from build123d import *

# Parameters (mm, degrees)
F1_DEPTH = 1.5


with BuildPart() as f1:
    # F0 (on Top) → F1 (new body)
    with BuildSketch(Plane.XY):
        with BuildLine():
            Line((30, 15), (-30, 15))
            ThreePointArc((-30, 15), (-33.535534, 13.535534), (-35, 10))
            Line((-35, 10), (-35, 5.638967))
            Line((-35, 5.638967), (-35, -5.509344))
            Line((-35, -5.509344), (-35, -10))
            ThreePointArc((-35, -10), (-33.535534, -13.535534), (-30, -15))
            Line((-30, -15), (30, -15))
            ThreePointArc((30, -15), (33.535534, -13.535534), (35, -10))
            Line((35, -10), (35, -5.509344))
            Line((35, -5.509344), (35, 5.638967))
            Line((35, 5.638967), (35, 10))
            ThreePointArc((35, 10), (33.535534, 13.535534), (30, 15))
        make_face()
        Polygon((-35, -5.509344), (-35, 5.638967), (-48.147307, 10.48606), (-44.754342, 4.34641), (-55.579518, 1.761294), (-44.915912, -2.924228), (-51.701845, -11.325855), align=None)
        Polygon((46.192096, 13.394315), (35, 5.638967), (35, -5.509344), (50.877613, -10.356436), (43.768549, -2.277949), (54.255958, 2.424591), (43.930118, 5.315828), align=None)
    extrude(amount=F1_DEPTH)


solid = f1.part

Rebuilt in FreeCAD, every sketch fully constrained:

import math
import FreeCAD as App
import Part
import Sketcher
Q = App.Units.Quantity

doc = App.newDocument("Part")
body = doc.addObject("PartDesign::Body", "Body")

# Sketch on XY plane
sketch1 = doc.addObject("Sketcher::SketchObject", "Sketch")
body.addObject(sketch1)
sketch1.AttachmentSupport = (doc.XY_Plane, [""])
sketch1.MapMode = "FlatFace"
sketch1.addGeometry(Part.LineSegment(App.Vector(30, 15, 0), App.Vector(-30, 15, 0)), False)
sketch1.addGeometry(Part.ArcOfCircle(Part.Circle(App.Vector(-30, 10, 0), App.Vector(0, 0, 1), 5), math.radians(90), math.radians(180)), False)
sketch1.addGeometry(Part.LineSegment(App.Vector(-35, 10, 0), App.Vector(-35, 5.6, 0)), False)
sketch1.addGeometry(Part.LineSegment(App.Vector(-35, 5.6, 0), App.Vector(-48.1, 10.5, 0)), False)
sketch1.addGeometry(Part.LineSegment(App.Vector(-48.1, 10.5, 0), App.Vector(-44.8, 4.3, 0)), False)
sketch1.addGeometry(Part.LineSegment(App.Vector(-44.8, 4.3, 0), App.Vector(-55.6, 1.8, 0)), False)
sketch1.addGeometry(Part.LineSegment(App.Vector(-55.6, 1.8, 0), App.Vector(-44.9, -2.9, 0)), False)
sketch1.addGeometry(Part.LineSegment(App.Vector(-44.9, -2.9, 0), App.Vector(-51.7, -11.3, 0)), False)
sketch1.addGeometry(Part.LineSegment(App.Vector(-51.7, -11.3, 0), App.Vector(-35, -5.5, 0)), False)
sketch1.addGeometry(Part.LineSegment(App.Vector(-35, -5.5, 0), App.Vector(-35, -10, 0)), False)
sketch1.addGeometry(Part.ArcOfCircle(Part.Circle(App.Vector(-30, -10, 0), App.Vector(0, 0, 1), 5), math.radians(180), math.radians(270)), False)
sketch1.addGeometry(Part.LineSegment(App.Vector(-30, -15, 0), App.Vector(30, -15, 0)), False)
sketch1.addGeometry(Part.ArcOfCircle(Part.Circle(App.Vector(30, -10, 0), App.Vector(0, 0, 1), 5), math.radians(-90), math.radians(0)), False)
sketch1.addGeometry(Part.LineSegment(App.Vector(35, -10, 0), App.Vector(35, -5.5, 0)), False)
sketch1.addGeometry(Part.LineSegment(App.Vector(35, -5.5, 0), App.Vector(50.9, -10.4, 0)), False)
sketch1.addGeometry(Part.LineSegment(App.Vector(50.9, -10.4, 0), App.Vector(43.8, -2.3, 0)), False)
sketch1.addGeometry(Part.LineSegment(App.Vector(43.8, -2.3, 0), App.Vector(54.3, 2.4, 0)), False)
sketch1.addGeometry(Part.LineSegment(App.Vector(54.3, 2.4, 0), App.Vector(43.9, 5.3, 0)), False)
sketch1.addGeometry(Part.LineSegment(App.Vector(43.9, 5.3, 0), App.Vector(46.2, 13.4, 0)), False)
sketch1.addGeometry(Part.LineSegment(App.Vector(46.2, 13.4, 0), App.Vector(35, 5.6, 0)), False)
sketch1.addGeometry(Part.LineSegment(App.Vector(35, 5.6, 0), App.Vector(35, 10, 0)), False)
sketch1.addGeometry(Part.ArcOfCircle(Part.Circle(App.Vector(30, 10, 0), App.Vector(0, 0, 1), 5), math.radians(0), math.radians(90)), False)
sketch1.addConstraint(Sketcher.Constraint("Tangent", 0, 2, 1, 1))
sketch1.addConstraint(Sketcher.Constraint("Tangent", 1, 2, 2, 1))
sketch1.addConstraint(Sketcher.Constraint("Coincident", 2, 2, 3, 1))
sketch1.addConstraint(Sketcher.Constraint("Coincident", 3, 2, 4, 1))
sketch1.addConstraint(Sketcher.Constraint("Coincident", 4, 2, 5, 1))
sketch1.addConstraint(Sketcher.Constraint("Coincident", 5, 2, 6, 1))
sketch1.addConstraint(Sketcher.Constraint("Coincident", 6, 2, 7, 1))
sketch1.addConstraint(Sketcher.Constraint("Coincident", 7, 2, 8, 1))
sketch1.addConstraint(Sketcher.Constraint("Coincident", 8, 2, 9, 1))
sketch1.addConstraint(Sketcher.Constraint("Tangent", 9, 2, 10, 1))
sketch1.addConstraint(Sketcher.Constraint("Tangent", 10, 2, 11, 1))
sketch1.addConstraint(Sketcher.Constraint("Tangent", 11, 2, 12, 1))
sketch1.addConstraint(Sketcher.Constraint("Tangent", 12, 2, 13, 1))
sketch1.addConstraint(Sketcher.Constraint("Coincident", 13, 2, 14, 1))
sketch1.addConstraint(Sketcher.Constraint("Coincident", 14, 2, 15, 1))
sketch1.addConstraint(Sketcher.Constraint("Coincident", 15, 2, 16, 1))
sketch1.addConstraint(Sketcher.Constraint("Coincident", 16, 2, 17, 1))
sketch1.addConstraint(Sketcher.Constraint("Coincident", 17, 2, 18, 1))
sketch1.addConstraint(Sketcher.Constraint("Coincident", 18, 2, 19, 1))
sketch1.addConstraint(Sketcher.Constraint("Coincident", 19, 2, 20, 1))
sketch1.addConstraint(Sketcher.Constraint("Tangent", 20, 2, 21, 1))
sketch1.addConstraint(Sketcher.Constraint("Tangent", 21, 2, 0, 1))
sketch1.addConstraint(Sketcher.Constraint("Horizontal", 0))
sketch1.addConstraint(Sketcher.Constraint("Vertical", 2))
sketch1.addConstraint(Sketcher.Constraint("Vertical", 9))
sketch1.addConstraint(Sketcher.Constraint("Horizontal", 11))
sketch1.addConstraint(Sketcher.Constraint("Vertical", 13))
sketch1.addConstraint(Sketcher.Constraint("Vertical", 20))
sketch1.addConstraint(Sketcher.Constraint("Equal", 1, 10))
sketch1.addConstraint(Sketcher.Constraint("Equal", 10, 12))
sketch1.addConstraint(Sketcher.Constraint("Equal", 12, 21))
sketch1.addConstraint(Sketcher.Constraint("Symmetric", 1, 3, 12, 3, -1, 1))
sketch1.addConstraint(Sketcher.Constraint("Symmetric", 8, 2, 13, 2, -2))
sketch1.addConstraint(Sketcher.Constraint("Symmetric", 2, 2, 19, 2, -2))
sketch1.addConstraint(Sketcher.Constraint("Perpendicular", 17, 18))
sketch1.addConstraint(Sketcher.Constraint("Radius", 1, Q("5 mm")))
sketch1.addConstraint(Sketcher.Constraint("DistanceX", 0, 2, 0, 1, Q("60 mm")))
sketch1.addConstraint(Sketcher.Constraint("DistanceY", -1, 1, 1, 3, Q("10 mm")))
sketch1.addConstraint(Sketcher.Constraint("Distance", 6, Q("11.647601 mm")))
sketch1.addConstraint(Sketcher.Constraint("Distance", 3, Q("14.012351 mm")))
sketch1.addConstraint(Sketcher.Constraint("Distance", 14, Q("16.600991 mm")))
sketch1.addConstraint(Sketcher.Constraint("Distance", 16, Q("11.49346 mm")))
sketch1.addConstraint(Sketcher.Constraint("Distance", 18, Q("8.389189 mm")))
sketch1.addConstraint(Sketcher.Constraint("DistanceY", 2, 2, 2, 1, Q("4.361033 mm")))
sketch1.addConstraint(Sketcher.Constraint("DistanceY", 9, 2, 9, 1, Q("4.490656 mm")))
sketch1.addConstraint(Sketcher.Constraint("DistanceY", -1, 1, 3, 2, Q("10.48606 mm")))
sketch1.addConstraint(Sketcher.Constraint("DistanceY", -1, 1, 4, 2, Q("4.34641 mm")))
sketch1.addConstraint(Sketcher.Constraint("DistanceX", -1, 1, 15, 2, Q("43.768549 mm")))
sketch1.addConstraint(Sketcher.Constraint("DistanceY", 15, 2, -1, 1, Q("2.277949 mm")))
sketch1.addConstraint(Sketcher.Constraint("DistanceY", -1, 1, 16, 2, Q("2.424591 mm")))
sketch1.addConstraint(Sketcher.Constraint("DistanceX", 4, 2, 1, 3, Q("14.754342 mm")))
sketch1.addConstraint(Sketcher.Constraint("DistanceX", 5, 2, 3, 2, Q("7.432211 mm")))
sketch1.addConstraint(Sketcher.Constraint("DistanceX", 6, 2, 4, 2, Q("0.16157 mm")))
sketch1.addConstraint(Sketcher.Constraint("DistanceY", 7, 2, 5, 2, Q("13.087149 mm")))
sketch1.addConstraint(Sketcher.Constraint("DistanceX", 7, 2, 3, 2, Q("3.554538 mm")))
sketch1.addConstraint(Sketcher.Constraint("DistanceY", 10, 2, 6, 2, Q("12.075772 mm")))
sketch1.addConstraint(Sketcher.Constraint("DistanceX", 15, 2, 17, 2, Q("0.161569 mm")))
sketch1.addConstraint(Sketcher.Constraint("DistanceY", 13, 2, 17, 2, Q("10.825172 mm")))
sketch1.addConstraint(Sketcher.Constraint("Distance", 15, Q("10.761075 mm")))
pad1 = doc.addObject("PartDesign::Pad", "Pad")
body.addObject(pad1)
pad1.Profile = sketch1
pad1.Length = 1.5

doc.recompute()
